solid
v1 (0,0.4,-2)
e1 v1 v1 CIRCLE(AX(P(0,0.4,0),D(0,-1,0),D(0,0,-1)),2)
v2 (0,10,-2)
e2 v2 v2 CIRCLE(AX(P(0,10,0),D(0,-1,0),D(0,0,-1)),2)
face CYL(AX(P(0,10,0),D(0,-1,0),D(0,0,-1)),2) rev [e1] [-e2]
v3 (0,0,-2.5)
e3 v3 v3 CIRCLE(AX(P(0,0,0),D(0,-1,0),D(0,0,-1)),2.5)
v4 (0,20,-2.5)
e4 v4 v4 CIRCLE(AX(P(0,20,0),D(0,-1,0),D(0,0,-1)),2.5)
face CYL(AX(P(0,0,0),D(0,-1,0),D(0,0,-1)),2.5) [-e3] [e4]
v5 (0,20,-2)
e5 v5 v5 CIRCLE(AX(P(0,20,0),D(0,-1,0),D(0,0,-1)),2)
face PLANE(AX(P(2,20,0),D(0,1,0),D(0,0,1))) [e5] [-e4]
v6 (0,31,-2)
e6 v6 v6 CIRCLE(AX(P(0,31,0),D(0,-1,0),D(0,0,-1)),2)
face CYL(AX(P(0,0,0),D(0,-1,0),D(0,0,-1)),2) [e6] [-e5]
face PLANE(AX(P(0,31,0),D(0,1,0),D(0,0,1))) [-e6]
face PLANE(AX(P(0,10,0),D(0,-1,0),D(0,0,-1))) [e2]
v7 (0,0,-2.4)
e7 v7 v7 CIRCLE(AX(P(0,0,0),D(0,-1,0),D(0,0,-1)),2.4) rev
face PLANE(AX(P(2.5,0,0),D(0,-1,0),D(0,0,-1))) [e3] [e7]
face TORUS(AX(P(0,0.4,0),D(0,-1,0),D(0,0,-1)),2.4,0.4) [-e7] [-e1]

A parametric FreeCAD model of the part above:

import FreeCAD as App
import Part
import Sketcher

V = App.Vector
Q = App.Units.Quantity


def edges_at(feature, points):
    """Names of the edges that pass closest to the given points."""
    edges = feature.Shape.Edges
    near = lambda p: min(range(len(edges)), key=lambda i: edges[i].distToShape(Part.Vertex(*p))[0])
    return sorted({f"Edge{near(p) + 1}" for p in points})

doc = App.newDocument("Part")
params = doc.addObject("Spreadsheet::Sheet", "Params")
for row, (alias, value) in enumerate([
    ("sketch1_width", "2 mm"),
    ("sketch1_height", "31 mm"),
    ("sketch1_height2", "20 mm"),
    ("sketch1_width2", "2.5 mm"),
    ("revolution_angle", "360 deg"),
    ("sketch2_diameter", "4 mm"),
    ("pocket1_length", "10 mm"),
    ("fillet_radius", "0.4 mm"),
], start=1):
    params.set(f"A{row}", alias)
    params.set(f"B{row}", "=" + value)
    params.setAlias(f"B{row}", alias)

body = doc.addObject("PartDesign::Body", "Body")

# Sketch on XY plane
sketch1 = body.newObject("Sketcher::SketchObject", "Sketch")
sketch1.AttachmentSupport = (doc.getObject("XY_Plane"), [""])
sketch1.MapMode = "FlatFace"
sketch1.addGeometry([
    Part.LineSegment(V(0, 31, 0), V(0, 0, 0)),  # 0
    Part.LineSegment(V(0, 0, 0), V(2.5, 0, 0)),  # 1
    Part.LineSegment(V(2.5, 0, 0), V(2.5, 20, 0)),  # 2
    Part.LineSegment(V(2.5, 20, 0), V(2, 20, 0)),  # 3
    Part.LineSegment(V(2, 20, 0), V(2, 31, 0)),  # 4
    Part.LineSegment(V(2, 31, 0), V(0, 31, 0)),  # 5
], False)
sketch1.addConstraint([
    Sketcher.Constraint("Coincident", 0, 2, 1, 1),
    Sketcher.Constraint("Coincident", 1, 2, 2, 1),
    Sketcher.Constraint("Coincident", 2, 2, 3, 1),
    Sketcher.Constraint("Coincident", 3, 2, 4, 1),
    Sketcher.Constraint("Coincident", 4, 2, 5, 1),
    Sketcher.Constraint("Coincident", 5, 2, 0, 1),
    Sketcher.Constraint("Vertical", 0),
    Sketcher.Constraint("Horizontal", 1),
    Sketcher.Constraint("Vertical", 2),
    Sketcher.Constraint("Horizontal", 3),
    Sketcher.Constraint("Vertical", 4),
    Sketcher.Constraint("Horizontal", 5),
    Sketcher.Constraint("Coincident", 0, 2, -1, 1),
    Sketcher.Constraint("DistanceX", 5, 2, 5, 1, Q("2 mm")),
    Sketcher.Constraint("DistanceY", 0, 2, 0, 1, Q("31 mm")),
    Sketcher.Constraint("DistanceY", 2, 1, 2, 2, Q("20 mm")),
    Sketcher.Constraint("DistanceX", 1, 1, 1, 2, Q("2.5 mm")),
])
sketch1.setExpression("Constraints[13]", "Params.sketch1_width")
sketch1.setExpression("Constraints[14]", "Params.sketch1_height")
sketch1.setExpression("Constraints[15]", "Params.sketch1_height2")
sketch1.setExpression("Constraints[16]", "Params.sketch1_width2")
revolution = body.newObject("PartDesign::Revolution", "Revolution")
revolution.Profile = sketch1
revolution.ReferenceAxis = (sketch1, ["V_Axis"])
revolution.setExpression("Angle", "Params.revolution_angle")

# Sketch on XZ plane
sketch2 = body.newObject("Sketcher::SketchObject", "Sketch001")
sketch2.AttachmentSupport = (doc.getObject("XZ_Plane"), [""])
sketch2.MapMode = "FlatFace"
sketch2.addGeometry(Part.Circle(V(0, 0, 0), V(0, 0, 1), 2), False)
sketch2.addConstraint([
    Sketcher.Constraint("Coincident", 0, 3, -1, 1),
    Sketcher.Constraint("Diameter", 0, Q("4 mm")),
])
sketch2.setExpression("Constraints[1]", "Params.sketch2_diameter")
pocket1 = body.newObject("PartDesign::Pocket", "Pocket")
pocket1.Profile = sketch2
pocket1.setExpression("Length", "Params.pocket1_length")
doc.recompute()

fillet = body.newObject("PartDesign::Fillet", "Fillet")
fillet.Base = (pocket1, edges_at(pocket1, [(0, 0, 2)]))
fillet.setExpression("Radius", "Params.fillet_radius")

doc.recompute()
